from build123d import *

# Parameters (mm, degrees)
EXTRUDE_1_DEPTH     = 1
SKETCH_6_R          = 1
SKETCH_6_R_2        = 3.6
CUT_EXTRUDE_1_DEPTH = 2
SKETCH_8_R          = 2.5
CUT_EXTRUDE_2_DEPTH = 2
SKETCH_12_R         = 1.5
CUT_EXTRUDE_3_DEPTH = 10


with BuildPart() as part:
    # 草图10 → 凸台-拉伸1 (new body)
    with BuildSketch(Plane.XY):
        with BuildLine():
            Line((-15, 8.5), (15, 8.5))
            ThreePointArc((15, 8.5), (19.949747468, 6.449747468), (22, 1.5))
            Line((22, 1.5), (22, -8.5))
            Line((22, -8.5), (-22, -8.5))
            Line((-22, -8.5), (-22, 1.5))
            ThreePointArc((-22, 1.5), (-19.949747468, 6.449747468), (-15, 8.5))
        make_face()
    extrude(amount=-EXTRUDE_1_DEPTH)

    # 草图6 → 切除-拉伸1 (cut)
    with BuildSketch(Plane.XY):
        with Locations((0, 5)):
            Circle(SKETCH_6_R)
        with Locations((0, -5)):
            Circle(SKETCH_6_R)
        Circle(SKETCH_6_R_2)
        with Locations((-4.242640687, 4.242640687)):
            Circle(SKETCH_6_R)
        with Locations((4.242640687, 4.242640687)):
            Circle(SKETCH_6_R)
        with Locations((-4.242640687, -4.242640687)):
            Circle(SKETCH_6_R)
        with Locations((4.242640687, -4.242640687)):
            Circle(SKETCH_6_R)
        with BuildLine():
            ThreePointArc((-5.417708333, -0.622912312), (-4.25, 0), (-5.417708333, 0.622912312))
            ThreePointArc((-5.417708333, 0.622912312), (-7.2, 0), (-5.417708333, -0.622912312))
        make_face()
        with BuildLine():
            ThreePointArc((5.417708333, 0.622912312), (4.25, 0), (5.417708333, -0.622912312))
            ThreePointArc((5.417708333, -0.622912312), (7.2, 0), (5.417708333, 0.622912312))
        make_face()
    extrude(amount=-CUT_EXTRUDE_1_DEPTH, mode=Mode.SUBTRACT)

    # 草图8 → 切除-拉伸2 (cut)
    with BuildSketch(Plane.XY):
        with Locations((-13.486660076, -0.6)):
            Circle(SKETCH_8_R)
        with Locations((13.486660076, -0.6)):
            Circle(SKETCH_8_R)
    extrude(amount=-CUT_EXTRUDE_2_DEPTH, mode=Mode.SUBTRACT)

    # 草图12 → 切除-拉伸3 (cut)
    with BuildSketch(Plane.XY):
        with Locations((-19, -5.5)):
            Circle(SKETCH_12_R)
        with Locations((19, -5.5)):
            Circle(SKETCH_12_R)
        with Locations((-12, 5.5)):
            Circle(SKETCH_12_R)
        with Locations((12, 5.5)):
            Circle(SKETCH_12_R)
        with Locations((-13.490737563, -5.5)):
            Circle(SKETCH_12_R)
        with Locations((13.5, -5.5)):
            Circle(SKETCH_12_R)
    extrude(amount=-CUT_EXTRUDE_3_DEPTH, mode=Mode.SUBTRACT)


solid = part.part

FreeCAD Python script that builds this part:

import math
import FreeCAD as App
import Part
import Sketcher

V = App.Vector
Q = App.Units.Quantity

doc = App.newDocument("Part")
body = doc.addObject("PartDesign::Body", "Body")

sketch1 = doc.addObject("Sketcher::SketchObject", "Sketch")
body.addObject(sketch1)
sketch1.AttachmentSupport = (doc.XY_Plane, [""])
sketch1.MapMode = "FlatFace"
sketch1.addGeometry([
    Part.LineSegment(V(15, 8, 0), V(-15, 8, 0)),
    Part.ArcOfCircle(Part.Circle(V(-15, 1, 0), V(0, 0, 1), 7), math.radians(90), math.radians(180)),
    Part.LineSegment(V(-22, 2, 0), V(-22, -8, 0)),
    Part.LineSegment(V(-22, -8, 0), V(22, -8, 0)),
    Part.LineSegment(V(22, -8, 0), V(22, 2, 0)),
    Part.ArcOfCircle(Part.Circle(V(15, 1, 0), V(0, 0, 1), 7), math.radians(0), math.radians(90)),
], False)
sketch1.addConstraint([
    Sketcher.Constraint("Tangent", 0, 2, 1, 1),
    Sketcher.Constraint("Tangent", 1, 2, 2, 1),
    Sketcher.Constraint("Coincident", 2, 2, 3, 1),
    Sketcher.Constraint("Coincident", 3, 2, 4, 1),
    Sketcher.Constraint("Tangent", 4, 2, 5, 1),
    Sketcher.Constraint("Tangent", 5, 2, 0, 1),
    Sketcher.Constraint("Horizontal", 0),
    Sketcher.Constraint("Vertical", 2),
    Sketcher.Constraint("Horizontal", 3),
    Sketcher.Constraint("Vertical", 4),
    Sketcher.Constraint("Equal", 1, 5),
    Sketcher.Constraint("Radius", 1, Q("7 mm")),
    Sketcher.Constraint("DistanceX", 0, 2, 0, 1, Q("30 mm")),
    Sketcher.Constraint("DistanceY", 2, 2, 2, 1, Q("10 mm")),
    Sketcher.Constraint("DistanceX", 1, 3, -1, 1, Q("15 mm")),
    Sketcher.Constraint("DistanceY", -1, 1, 1, 3, Q("1.5 mm")),
])
pad1 = doc.addObject("PartDesign::Pad", "Pad")
body.addObject(pad1)
pad1.Profile = sketch1
pad1.Length = 1
pad1.Reversed = True

sketch2 = doc.addObject("Sketcher::SketchObject", "Sketch001")
body.addObject(sketch2)
sketch2.AttachmentSupport = (doc.XY_Plane, [""])
sketch2.MapMode = "FlatFace"
sketch2.addGeometry([
    Part.Circle(V(0, 5, 0), V(0, 0, 1), 1),
    Part.Circle(V(0, -5, 0), V(0, 0, 1), 1),
    Part.Circle(V(0, 0, 0), V(0, 0, 1), 3.6),
    Part.Circle(V(-4.2, 4.2, 0), V(0, 0, 1), 1),
    Part.Circle(V(4.2, 4.2, 0), V(0, 0, 1), 1),
    Part.Circle(V(-4.2, -4.2, 0), V(0, 0, 1), 1),
    Part.Circle(V(4.2, -4.2, 0), V(0, 0, 1), 1),
    Part.ArcOfCircle(Part.Circle(V(-5, 0, 0), V(0, 0, 1), 0.8), math.radians(-124), math.radians(124)),
    Part.ArcOfCircle(Part.Circle(V(-6.2, 0, 0), V(0, 0, 1), 1), math.radians(39), math.radians(321)),
    Part.ArcOfCircle(Part.Circle(V(5, 0, 0), V(0, 0, 1), 0.8), math.radians(56), math.radians(304)),
    Part.ArcOfCircle(Part.Circle(V(6.2, 0, 0), V(0, 0, 1), 1), math.radians(-141), math.radians(141)),
], False)
sketch2.addConstraint([
    Sketcher.Constraint("Coincident", 7, 1, 8, 2),
    Sketcher.Constraint("Coincident", 8, 1, 7, 2),
    Sketcher.Constraint("Coincident", 9, 1, 10, 2),
    Sketcher.Constraint("Coincident", 10, 1, 9, 2),
    Sketcher.Constraint("Coincident", 2, 3, -1, 1),
    Sketcher.Constraint("Equal", 0, 1),
    Sketcher.Constraint("Equal", 1, 3),
    Sketcher.Constraint("Equal", 3, 4),
    Sketcher.Constraint("Equal", 4, 5),
    Sketcher.Constraint("Equal", 5, 6),
    Sketcher.Constraint("Equal", 6, 8),
    Sketcher.Constraint("Equal", 7, 9),
    Sketcher.Constraint("Equal", 8, 10),
    Sketcher.Constraint("Symmetric", 0, 3, 1, 3, -1, 1),
    Sketcher.Constraint("Symmetric", 4, 3, 5, 3, -1, 1),
    Sketcher.Constraint("Symmetric", 3, 3, 6, 3, -1, 1),
    Sketcher.Constraint("Symmetric", 7, 3, 9, 3, -1, 1),
    Sketcher.Constraint("Symmetric", 8, 3, 10, 3, -1, 1),
    Sketcher.Constraint("Symmetric", 3, 3, 4, 3, -2),
    Sketcher.Constraint("Symmetric", 8, 1, 9, 1, -2),
    Sketcher.Constraint("PointOnObject", 0, 3, -2),
    Sketcher.Constraint("Diameter", 0, Q("2 mm")),
    Sketcher.Constraint("Diameter", 2, Q("7.2 mm")),
    Sketcher.Constraint("Radius", 7, Q("0.75 mm")),
    Sketcher.Constraint("DistanceY", -1, 1, 0, 3, Q("5 mm")),
    Sketcher.Constraint("DistanceX", 7, 3, -1, 1, Q("5 mm")),
    Sketcher.Constraint("DistanceX", 8, 3, -1, 1, Q("6.2 mm")),
    Sketcher.Constraint("DistanceX", 3, 3, -1, 1, Q("4.242641 mm")),
    Sketcher.Constraint("DistanceY", -1, 1, 3, 3, Q("4.242641 mm")),
])
pocket1 = doc.addObject("PartDesign::Pocket", "Pocket")
body.addObject(pocket1)
pocket1.Profile = sketch2
pocket1.Length = 2

sketch3 = doc.addObject("Sketcher::SketchObject", "Sketch002")
body.addObject(sketch3)
sketch3.AttachmentSupport = (doc.XY_Plane, [""])
sketch3.MapMode = "FlatFace"
sketch3.addGeometry([
    Part.Circle(V(-13.5, -0.6, 0), V(0, 0, 1), 2.5),
    Part.Circle(V(13.5, -0.6, 0), V(0, 0, 1), 2.5),
], False)
sketch3.addConstraint([
    Sketcher.Constraint("Equal", 0, 1),
    Sketcher.Constraint("Symmetric", 0, 3, 1, 3, -2),
    Sketcher.Constraint("Diameter", 0, Q("5 mm")),
    Sketcher.Constraint("DistanceY", 0, 3, -1, 1, Q("0.6 mm")),
    Sketcher.Constraint("DistanceX", 0, 3, -1, 1, Q("13.48666 mm")),
])
pocket2 = doc.addObject("PartDesign::Pocket", "Pocket001")
body.addObject(pocket2)
pocket2.Profile = sketch3
pocket2.Length = 2

sketch4 = doc.addObject("Sketcher::SketchObject", "Sketch003")
body.addObject(sketch4)
sketch4.AttachmentSupport = (doc.XY_Plane, [""])
sketch4.MapMode = "FlatFace"
sketch4.addGeometry([
    Part.Circle(V(-19, -5.5, 0), V(0, 0, 1), 1.5),
    Part.Circle(V(19, -5.5, 0), V(0, 0, 1), 1.5),
    Part.Circle(V(-12, 5.5, 0), V(0, 0, 1), 1.5),
    Part.Circle(V(12, 5.5, 0), V(0, 0, 1), 1.5),
    Part.Circle(V(-13.5, -5.5, 0), V(0, 0, 1), 1.5),
    Part.Circle(V(13.5, -5.5, 0), V(0, 0, 1), 1.5),
], False)
sketch4.addConstraint([
    Sketcher.Constraint("Equal", 0, 1),
    Sketcher.Constraint("Equal", 1, 2),
    Sketcher.Constraint("Equal", 2, 3),
    Sketcher.Constraint("Equal", 3, 4),
    Sketcher.Constraint("Equal", 4, 5),
    Sketcher.Constraint("Symmetric", 0, 3, 1, 3, -2),
    Sketcher.Constraint("Symmetric", 2, 3, 3, 3, -2),
    Sketcher.Constraint("Horizontal", 1, 3, 4, 3),
    Sketcher.Constraint("Horizontal", 4, 3, 5, 3),
    Sketcher.Constraint("Diameter", 0, Q("3 mm")),
    Sketcher.Constraint("DistanceX", 0, 3, -1, 1, Q("19 mm")),
    Sketcher.Constraint("DistanceX", 2, 3, -1, 1, Q("12 mm")),
    Sketcher.Constraint("DistanceY", 0, 3, 2, 3, Q("11 mm")),
    Sketcher.Constraint("DistanceY", 0, 3, -1, 1, Q("5.5 mm")),
    Sketcher.Constraint("DistanceX", -1, 1, 5, 3, Q("13.5 mm")),
    Sketcher.Constraint("DistanceX", 4, 3, -1, 1, Q("13.490738 mm")),
])
pocket3 = doc.addObject("PartDesign::Pocket", "Pocket002")
body.addObject(pocket3)
pocket3.Profile = sketch4
pocket3.Length = 10

doc.recompute()
